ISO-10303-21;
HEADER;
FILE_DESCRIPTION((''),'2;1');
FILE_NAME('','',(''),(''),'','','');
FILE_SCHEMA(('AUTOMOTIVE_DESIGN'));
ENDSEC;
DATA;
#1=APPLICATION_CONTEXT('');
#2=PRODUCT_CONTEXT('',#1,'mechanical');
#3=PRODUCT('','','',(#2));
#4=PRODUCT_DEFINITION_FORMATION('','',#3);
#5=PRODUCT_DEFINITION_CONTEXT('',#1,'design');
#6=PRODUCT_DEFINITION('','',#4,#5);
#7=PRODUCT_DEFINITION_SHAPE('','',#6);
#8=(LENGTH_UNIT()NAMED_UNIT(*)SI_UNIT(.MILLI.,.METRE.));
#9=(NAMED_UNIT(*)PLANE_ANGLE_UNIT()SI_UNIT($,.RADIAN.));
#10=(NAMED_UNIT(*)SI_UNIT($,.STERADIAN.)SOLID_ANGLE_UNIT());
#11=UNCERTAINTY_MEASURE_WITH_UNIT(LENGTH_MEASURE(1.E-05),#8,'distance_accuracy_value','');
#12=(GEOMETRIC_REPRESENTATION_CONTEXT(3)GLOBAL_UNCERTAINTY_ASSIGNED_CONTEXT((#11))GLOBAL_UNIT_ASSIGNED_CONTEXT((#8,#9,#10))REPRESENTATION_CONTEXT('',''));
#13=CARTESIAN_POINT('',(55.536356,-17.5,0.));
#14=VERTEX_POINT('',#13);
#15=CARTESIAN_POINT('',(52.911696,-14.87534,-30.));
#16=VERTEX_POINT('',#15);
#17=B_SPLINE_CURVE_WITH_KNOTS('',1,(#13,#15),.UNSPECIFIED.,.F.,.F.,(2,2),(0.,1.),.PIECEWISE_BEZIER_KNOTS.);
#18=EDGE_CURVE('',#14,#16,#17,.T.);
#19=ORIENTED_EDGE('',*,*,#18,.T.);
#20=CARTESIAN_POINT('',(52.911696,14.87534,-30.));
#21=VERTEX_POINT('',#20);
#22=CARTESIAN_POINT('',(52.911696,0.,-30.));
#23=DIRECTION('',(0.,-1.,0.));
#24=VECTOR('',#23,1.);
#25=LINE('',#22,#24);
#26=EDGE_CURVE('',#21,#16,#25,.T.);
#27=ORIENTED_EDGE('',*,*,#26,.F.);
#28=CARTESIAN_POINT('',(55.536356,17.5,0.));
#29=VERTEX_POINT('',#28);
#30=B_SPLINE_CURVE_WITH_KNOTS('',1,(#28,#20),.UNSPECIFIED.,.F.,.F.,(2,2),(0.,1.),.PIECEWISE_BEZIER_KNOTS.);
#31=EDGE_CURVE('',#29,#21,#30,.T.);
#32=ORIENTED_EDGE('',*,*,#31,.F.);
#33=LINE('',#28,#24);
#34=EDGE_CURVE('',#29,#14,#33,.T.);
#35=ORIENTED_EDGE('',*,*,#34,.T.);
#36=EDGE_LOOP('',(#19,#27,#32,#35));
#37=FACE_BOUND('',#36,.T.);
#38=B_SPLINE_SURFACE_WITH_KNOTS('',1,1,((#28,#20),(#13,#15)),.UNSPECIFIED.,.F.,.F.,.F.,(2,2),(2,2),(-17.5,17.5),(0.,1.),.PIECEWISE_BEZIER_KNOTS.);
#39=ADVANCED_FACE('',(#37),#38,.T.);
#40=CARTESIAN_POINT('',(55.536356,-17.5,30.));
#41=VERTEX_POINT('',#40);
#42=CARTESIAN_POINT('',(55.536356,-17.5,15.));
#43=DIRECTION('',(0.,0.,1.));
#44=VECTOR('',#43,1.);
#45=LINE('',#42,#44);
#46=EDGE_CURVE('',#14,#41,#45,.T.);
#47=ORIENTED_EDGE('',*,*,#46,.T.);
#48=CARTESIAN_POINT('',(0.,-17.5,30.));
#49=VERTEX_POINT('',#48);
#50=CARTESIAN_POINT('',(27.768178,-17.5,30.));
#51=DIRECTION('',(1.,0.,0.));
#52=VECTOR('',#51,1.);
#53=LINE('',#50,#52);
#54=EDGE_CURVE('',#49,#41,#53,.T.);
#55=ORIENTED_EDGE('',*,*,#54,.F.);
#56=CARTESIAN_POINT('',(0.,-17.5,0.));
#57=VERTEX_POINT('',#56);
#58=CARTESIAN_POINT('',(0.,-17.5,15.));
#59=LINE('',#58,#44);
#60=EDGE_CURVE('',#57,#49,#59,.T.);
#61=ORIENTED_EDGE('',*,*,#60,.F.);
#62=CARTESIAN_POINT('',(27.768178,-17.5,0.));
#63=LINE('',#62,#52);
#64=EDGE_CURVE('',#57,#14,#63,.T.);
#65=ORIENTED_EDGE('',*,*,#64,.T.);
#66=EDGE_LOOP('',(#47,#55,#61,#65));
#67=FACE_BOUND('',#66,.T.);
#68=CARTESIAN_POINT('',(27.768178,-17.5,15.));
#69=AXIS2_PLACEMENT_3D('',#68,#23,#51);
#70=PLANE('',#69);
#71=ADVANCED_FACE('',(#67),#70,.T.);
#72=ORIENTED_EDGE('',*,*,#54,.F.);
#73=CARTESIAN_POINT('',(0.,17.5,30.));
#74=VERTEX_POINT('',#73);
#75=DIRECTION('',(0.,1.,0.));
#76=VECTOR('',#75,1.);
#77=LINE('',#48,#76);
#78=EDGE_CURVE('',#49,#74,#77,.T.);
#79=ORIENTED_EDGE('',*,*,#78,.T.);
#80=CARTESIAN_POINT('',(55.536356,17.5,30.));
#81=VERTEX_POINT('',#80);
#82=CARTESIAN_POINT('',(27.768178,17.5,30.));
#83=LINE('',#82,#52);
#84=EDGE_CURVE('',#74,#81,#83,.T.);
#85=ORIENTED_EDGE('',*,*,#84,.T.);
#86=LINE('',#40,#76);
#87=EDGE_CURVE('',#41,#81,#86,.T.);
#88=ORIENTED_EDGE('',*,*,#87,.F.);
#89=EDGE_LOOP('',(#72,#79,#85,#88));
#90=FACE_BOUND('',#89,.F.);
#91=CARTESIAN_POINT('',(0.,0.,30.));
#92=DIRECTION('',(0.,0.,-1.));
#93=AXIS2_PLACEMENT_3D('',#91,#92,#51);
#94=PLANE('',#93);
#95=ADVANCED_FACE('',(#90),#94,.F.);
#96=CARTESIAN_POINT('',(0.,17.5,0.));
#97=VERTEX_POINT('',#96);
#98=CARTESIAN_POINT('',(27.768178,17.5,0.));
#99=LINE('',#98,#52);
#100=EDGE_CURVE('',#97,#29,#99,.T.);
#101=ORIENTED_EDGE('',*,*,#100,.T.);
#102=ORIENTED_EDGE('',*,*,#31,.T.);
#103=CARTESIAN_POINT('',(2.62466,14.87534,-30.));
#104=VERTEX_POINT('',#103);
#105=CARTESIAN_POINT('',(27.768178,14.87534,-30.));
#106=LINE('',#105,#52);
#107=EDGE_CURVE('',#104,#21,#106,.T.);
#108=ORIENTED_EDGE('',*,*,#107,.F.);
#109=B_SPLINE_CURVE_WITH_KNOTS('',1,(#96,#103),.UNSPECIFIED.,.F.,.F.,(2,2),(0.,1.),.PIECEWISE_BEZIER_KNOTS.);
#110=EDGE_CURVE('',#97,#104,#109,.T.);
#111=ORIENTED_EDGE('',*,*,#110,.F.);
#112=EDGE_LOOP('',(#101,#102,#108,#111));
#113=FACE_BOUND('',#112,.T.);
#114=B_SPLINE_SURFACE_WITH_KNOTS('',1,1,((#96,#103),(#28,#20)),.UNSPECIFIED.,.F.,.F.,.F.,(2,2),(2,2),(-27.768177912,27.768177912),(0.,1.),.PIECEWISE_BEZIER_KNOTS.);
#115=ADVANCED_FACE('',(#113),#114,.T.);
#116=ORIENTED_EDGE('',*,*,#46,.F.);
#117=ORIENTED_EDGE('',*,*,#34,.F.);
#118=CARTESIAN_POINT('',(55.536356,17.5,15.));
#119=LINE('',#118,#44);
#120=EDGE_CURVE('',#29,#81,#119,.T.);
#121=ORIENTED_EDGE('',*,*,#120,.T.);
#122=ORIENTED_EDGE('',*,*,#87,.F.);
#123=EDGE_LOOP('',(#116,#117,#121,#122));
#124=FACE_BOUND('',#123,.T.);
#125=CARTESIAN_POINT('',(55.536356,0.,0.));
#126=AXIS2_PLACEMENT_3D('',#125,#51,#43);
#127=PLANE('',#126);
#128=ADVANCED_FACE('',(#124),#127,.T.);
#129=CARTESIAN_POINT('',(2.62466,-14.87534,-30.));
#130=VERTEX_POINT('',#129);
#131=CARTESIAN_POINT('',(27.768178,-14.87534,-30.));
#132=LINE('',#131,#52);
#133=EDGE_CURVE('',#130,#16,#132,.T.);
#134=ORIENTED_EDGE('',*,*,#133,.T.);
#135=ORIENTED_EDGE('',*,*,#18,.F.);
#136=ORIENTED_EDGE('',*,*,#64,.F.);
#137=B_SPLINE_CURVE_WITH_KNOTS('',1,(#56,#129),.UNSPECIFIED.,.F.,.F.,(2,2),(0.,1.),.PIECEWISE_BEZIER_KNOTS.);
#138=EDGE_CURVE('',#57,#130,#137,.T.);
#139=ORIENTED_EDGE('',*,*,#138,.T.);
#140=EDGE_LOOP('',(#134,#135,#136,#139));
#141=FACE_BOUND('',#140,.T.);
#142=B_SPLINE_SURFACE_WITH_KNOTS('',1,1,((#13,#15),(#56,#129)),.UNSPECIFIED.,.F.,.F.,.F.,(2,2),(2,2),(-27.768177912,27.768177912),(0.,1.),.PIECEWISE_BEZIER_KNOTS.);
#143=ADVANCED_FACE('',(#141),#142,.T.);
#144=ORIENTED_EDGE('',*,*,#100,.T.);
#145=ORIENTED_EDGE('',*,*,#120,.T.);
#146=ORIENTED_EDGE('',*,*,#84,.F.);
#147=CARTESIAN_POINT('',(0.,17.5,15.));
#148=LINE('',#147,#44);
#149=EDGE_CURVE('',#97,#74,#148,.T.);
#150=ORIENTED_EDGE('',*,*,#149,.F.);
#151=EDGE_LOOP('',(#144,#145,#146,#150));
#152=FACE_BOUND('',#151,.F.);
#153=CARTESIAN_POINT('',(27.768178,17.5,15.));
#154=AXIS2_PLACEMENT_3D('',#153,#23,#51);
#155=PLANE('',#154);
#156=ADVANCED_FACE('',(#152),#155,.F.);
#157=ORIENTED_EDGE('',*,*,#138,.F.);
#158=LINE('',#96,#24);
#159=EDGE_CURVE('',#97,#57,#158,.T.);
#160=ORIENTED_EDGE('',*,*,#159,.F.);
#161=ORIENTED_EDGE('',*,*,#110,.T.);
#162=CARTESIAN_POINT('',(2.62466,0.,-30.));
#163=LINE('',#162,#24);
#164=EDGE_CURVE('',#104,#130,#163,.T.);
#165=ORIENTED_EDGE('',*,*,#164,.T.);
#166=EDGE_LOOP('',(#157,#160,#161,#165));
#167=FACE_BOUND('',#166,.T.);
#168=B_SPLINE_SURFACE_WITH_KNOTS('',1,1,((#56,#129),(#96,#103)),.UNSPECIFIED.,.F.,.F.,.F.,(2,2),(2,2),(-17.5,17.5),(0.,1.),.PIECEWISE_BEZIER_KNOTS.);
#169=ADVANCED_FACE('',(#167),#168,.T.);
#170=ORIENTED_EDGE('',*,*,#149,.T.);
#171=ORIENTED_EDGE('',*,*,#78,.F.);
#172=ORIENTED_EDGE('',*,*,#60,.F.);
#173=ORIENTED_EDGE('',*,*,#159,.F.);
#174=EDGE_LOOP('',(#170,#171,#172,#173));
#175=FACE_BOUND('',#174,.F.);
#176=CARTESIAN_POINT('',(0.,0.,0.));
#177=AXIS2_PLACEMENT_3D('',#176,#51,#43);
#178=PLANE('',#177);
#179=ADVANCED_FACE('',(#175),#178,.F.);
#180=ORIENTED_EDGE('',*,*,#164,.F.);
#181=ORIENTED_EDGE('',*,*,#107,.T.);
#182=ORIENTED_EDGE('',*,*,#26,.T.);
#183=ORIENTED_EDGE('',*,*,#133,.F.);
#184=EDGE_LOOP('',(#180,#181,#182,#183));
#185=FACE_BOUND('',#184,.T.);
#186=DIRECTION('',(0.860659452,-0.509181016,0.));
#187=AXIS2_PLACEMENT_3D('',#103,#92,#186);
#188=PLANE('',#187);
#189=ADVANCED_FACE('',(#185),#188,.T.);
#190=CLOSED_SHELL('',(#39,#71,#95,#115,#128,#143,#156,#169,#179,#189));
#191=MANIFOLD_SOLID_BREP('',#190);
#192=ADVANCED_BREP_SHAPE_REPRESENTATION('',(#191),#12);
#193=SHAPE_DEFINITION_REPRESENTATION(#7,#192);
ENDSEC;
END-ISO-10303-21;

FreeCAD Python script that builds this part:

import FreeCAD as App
import Part
import Sketcher

doc = App.newDocument("Part")
body = doc.addObject("PartDesign::Body", "Body")

# Sketch on XZ plane
sketch1 = body.newObject("Sketcher::SketchObject", "Sketch")
sketch1.AttachmentSupport = (doc.getObject("XZ_Plane"), [""])
sketch1.MapMode = "FlatFace"
sketch1.addGeometry(Part.LineSegment(App.Vector(0, 30, 0), App.Vector(0, 0, 0)), False)
sketch1.addGeometry(Part.LineSegment(App.Vector(0, 0, 0), App.Vector(55.536356, 0, 0)), False)
sketch1.addGeometry(Part.LineSegment(App.Vector(55.536356, 0, 0), App.Vector(55.536356, 30, 0)), False)
sketch1.addGeometry(Part.LineSegment(App.Vector(55.536356, 30, 0), App.Vector(0, 30, 0)), False)
sketch1.addConstraint(Sketcher.Constraint("Coincident", 0, 2, 1, 1))
sketch1.addConstraint(Sketcher.Constraint("Coincident", 1, 2, 2, 1))
sketch1.addConstraint(Sketcher.Constraint("Coincident", 2, 2, 3, 1))
sketch1.addConstraint(Sketcher.Constraint("Coincident", 3, 2, 0, 1))
sketch1.addConstraint(Sketcher.Constraint("Vertical", 0))
sketch1.addConstraint(Sketcher.Constraint("Horizontal", 1))
sketch1.addConstraint(Sketcher.Constraint("Vertical", 2))
sketch1.addConstraint(Sketcher.Constraint("Horizontal", 3))
sketch1.addConstraint(Sketcher.Constraint("Coincident", 0, 2, -1, 1))
sketch1.addConstraint(Sketcher.Constraint("DistanceY", 0, 2, 0, 1, 30.0))
sketch1.addConstraint(Sketcher.Constraint("DistanceX", 1, 1, 1, 2, 55.536356))
pad1 = body.newObject("PartDesign::Pad", "Pad")
pad1.Profile = sketch1
pad1.Length = 35
pad1.Midplane = True

# Sketch on XY plane
sketch2 = body.newObject("Sketcher::SketchObject", "Sketch001")
sketch2.AttachmentSupport = (doc.getObject("XY_Plane"), [""])
sketch2.MapMode = "FlatFace"
sketch2.addGeometry(Part.LineSegment(App.Vector(0, -17.5, 0), App.Vector(0, 17.5, 0)), False)
sketch2.addGeometry(Part.LineSegment(App.Vector(0, 17.5, 0), App.Vector(55.536356, 17.5, 0)), False)
sketch2.addGeometry(Part.LineSegment(App.Vector(55.536356, 17.5, 0), App.Vector(55.536356, -17.5, 0)), False)
sketch2.addGeometry(Part.LineSegment(App.Vector(55.536356, -17.5, 0), App.Vector(0, -17.5, 0)), False)
sketch2.addConstraint(Sketcher.Constraint("Coincident", 0, 2, 1, 1))
sketch2.addConstraint(Sketcher.Constraint("Coincident", 1, 2, 2, 1))
sketch2.addConstraint(Sketcher.Constraint("Coincident", 2, 2, 3, 1))
sketch2.addConstraint(Sketcher.Constraint("Coincident", 3, 2, 0, 1))
sketch2.addConstraint(Sketcher.Constraint("Vertical", 0))
sketch2.addConstraint(Sketcher.Constraint("Horizontal", 1))
sketch2.addConstraint(Sketcher.Constraint("Vertical", 2))
sketch2.addConstraint(Sketcher.Constraint("Horizontal", 3))
sketch2.addConstraint(Sketcher.Constraint("Symmetric", 0, 2, 3, 2, -1, 1))
sketch2.addConstraint(Sketcher.Constraint("DistanceY", 0, 1, 0, 2, 35.0))
sketch2.addConstraint(Sketcher.Constraint("DistanceX", 1, 1, 1, 2, 55.536356))
pad2 = body.newObject("PartDesign::Pad", "Pad001")
pad2.Profile = sketch2
pad2.Length = 30
pad2.Reversed = True
pad2.TaperAngle = -5

doc.recompute()
